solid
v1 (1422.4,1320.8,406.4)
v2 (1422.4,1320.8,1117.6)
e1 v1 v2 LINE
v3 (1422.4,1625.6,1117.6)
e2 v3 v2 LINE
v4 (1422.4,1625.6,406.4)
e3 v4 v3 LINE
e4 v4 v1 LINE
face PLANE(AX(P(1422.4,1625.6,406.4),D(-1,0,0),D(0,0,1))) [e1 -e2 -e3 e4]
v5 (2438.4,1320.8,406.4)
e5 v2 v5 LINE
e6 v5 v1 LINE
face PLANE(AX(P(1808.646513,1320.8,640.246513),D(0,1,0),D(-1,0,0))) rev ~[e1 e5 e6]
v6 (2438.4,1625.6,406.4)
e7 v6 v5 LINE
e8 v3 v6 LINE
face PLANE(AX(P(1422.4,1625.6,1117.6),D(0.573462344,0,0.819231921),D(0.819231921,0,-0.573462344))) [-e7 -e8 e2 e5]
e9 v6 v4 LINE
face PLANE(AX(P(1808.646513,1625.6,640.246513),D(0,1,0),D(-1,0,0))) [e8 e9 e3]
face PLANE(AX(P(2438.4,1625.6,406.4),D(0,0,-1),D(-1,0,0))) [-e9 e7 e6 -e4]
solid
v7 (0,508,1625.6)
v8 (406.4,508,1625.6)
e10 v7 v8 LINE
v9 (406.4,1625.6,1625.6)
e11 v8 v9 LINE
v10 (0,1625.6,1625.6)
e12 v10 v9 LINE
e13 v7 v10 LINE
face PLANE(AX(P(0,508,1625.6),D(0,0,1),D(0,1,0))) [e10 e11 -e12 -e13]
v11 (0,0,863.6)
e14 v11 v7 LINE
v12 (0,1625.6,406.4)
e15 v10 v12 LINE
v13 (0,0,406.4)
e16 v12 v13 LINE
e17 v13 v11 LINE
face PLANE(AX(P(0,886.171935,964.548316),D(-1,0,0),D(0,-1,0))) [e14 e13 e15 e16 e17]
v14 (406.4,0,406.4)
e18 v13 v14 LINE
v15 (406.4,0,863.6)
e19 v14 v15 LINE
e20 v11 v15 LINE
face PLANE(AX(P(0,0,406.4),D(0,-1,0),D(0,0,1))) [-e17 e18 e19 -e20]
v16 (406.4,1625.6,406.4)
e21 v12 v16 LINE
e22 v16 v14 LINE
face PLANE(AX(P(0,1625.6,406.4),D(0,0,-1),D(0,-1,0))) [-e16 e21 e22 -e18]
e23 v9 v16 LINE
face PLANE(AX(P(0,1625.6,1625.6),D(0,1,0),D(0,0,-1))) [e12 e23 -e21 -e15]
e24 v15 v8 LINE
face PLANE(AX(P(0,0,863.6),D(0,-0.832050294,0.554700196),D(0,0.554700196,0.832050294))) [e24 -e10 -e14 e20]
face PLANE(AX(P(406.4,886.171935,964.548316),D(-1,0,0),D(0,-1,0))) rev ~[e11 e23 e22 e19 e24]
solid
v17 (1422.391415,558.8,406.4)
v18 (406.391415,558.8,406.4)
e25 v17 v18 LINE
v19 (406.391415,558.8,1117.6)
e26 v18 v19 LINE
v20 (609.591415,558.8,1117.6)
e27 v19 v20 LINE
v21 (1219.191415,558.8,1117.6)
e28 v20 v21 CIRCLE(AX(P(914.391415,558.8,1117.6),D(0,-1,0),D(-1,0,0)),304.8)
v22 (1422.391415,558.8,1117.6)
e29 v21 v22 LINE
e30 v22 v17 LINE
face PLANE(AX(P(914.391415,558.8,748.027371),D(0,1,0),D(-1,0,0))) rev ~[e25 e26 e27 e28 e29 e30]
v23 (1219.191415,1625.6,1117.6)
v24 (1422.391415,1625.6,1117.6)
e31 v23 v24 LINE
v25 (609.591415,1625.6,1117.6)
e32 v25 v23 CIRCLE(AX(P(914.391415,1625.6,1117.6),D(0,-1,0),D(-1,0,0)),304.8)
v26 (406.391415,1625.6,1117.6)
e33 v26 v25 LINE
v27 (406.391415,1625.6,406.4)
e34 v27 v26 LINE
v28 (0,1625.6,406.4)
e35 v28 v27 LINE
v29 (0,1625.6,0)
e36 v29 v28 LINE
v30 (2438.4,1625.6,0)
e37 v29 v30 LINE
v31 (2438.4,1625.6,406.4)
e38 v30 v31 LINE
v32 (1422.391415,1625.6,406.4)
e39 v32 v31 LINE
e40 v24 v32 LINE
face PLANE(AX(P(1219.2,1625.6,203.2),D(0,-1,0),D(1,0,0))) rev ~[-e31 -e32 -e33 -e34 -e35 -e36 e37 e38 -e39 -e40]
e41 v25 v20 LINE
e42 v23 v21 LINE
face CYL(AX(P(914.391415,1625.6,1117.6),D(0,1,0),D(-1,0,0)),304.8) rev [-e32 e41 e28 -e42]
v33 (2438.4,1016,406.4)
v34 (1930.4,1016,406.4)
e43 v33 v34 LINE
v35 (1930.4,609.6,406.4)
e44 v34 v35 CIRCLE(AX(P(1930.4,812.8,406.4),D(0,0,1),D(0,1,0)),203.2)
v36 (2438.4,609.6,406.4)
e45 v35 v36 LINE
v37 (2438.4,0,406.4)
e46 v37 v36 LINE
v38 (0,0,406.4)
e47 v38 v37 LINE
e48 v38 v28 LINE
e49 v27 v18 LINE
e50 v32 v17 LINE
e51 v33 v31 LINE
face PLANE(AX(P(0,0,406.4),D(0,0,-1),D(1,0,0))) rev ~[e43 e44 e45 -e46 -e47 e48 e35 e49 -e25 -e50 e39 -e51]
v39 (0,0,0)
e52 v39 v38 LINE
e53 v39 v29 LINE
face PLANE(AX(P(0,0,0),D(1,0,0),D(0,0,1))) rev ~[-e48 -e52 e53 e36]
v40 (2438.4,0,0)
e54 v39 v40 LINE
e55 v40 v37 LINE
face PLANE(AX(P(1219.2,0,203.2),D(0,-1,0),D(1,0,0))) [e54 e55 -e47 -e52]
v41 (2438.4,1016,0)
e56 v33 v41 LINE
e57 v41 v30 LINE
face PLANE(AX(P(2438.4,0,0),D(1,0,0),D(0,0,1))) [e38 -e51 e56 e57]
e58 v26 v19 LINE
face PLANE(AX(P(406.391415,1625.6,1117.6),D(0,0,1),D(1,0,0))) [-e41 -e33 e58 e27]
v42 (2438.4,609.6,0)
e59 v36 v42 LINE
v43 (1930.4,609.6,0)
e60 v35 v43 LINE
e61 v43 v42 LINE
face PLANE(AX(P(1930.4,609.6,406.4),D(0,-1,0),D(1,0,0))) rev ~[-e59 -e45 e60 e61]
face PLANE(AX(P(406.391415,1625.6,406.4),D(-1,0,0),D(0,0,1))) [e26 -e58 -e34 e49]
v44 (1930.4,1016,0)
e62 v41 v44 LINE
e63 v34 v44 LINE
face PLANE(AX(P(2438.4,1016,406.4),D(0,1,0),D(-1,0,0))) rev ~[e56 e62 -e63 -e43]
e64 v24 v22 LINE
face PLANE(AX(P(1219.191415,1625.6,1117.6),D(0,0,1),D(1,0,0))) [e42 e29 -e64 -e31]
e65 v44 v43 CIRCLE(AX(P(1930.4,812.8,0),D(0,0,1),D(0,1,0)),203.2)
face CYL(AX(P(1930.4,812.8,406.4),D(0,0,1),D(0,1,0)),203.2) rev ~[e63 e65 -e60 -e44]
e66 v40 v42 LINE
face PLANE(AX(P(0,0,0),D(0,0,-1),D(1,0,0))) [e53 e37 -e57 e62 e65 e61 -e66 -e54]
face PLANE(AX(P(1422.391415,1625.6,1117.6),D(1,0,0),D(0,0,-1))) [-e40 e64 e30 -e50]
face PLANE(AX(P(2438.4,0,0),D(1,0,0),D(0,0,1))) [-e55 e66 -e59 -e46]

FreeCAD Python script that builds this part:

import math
import FreeCAD as App
import Part
import Sketcher
Q = App.Units.Quantity


def add_polygon(sketch, points):
    """Adds a closed chain of lines whose ends are joined by coincident constraints."""
    first, n = sketch.GeometryCount, len(points)
    for a, b in zip(points, points[1:] + points[:1]):
        sketch.addGeometry(Part.LineSegment(App.Vector(*a, 0), App.Vector(*b, 0)), False)
    for i in range(n):
        sketch.addConstraint(Sketcher.Constraint("Coincident", first + i, 2, first + (i + 1) % n, 1))

doc = App.newDocument("Part")
body = doc.addObject("PartDesign::Body", "Body")

sketch1 = body.newObject("Sketcher::SketchObject", "Sketch")
sketch1.AttachmentSupport = (doc.getObject("XZ_Plane"), [""])
sketch1.MapMode = "FlatFace"
add_polygon(sketch1, [(0, 406), (0, 0), (2438, 0), (2438, 406)])
sketch1.addConstraint([
    Sketcher.Constraint("Vertical", 0),
    Sketcher.Constraint("Horizontal", 1),
    Sketcher.Constraint("Vertical", 2),
    Sketcher.Constraint("Horizontal", 3),
    Sketcher.Constraint("Coincident", 0, 2, -1, 1),
    Sketcher.Constraint("DistanceX", 1, 1, 1, 2, Q("96 in")),
    Sketcher.Constraint("DistanceY", 0, 2, 0, 1, Q("16 in")),
])
pad1 = body.newObject("PartDesign::Pad", "Pad")
pad1.Profile = sketch1
pad1.Length = Q("64 in")
pad1.Reversed = True

sketch2 = body.newObject("Sketcher::SketchObject", "Sketch001")
sketch2.AttachmentSupport = (doc.getObject("XY_Plane"), [""])
sketch2.MapMode = "FlatFace"
sketch2.AttachmentOffset = App.Placement(App.Vector(0, 0, 16 * 25.4), App.Rotation())
sketch2.addGeometry([
    Part.LineSegment(App.Vector(1930, 610, 0), App.Vector(2438, 610, 0)),
    Part.LineSegment(App.Vector(2438, 610, 0), App.Vector(2438, 1016, 0)),
    Part.LineSegment(App.Vector(2438, 1016, 0), App.Vector(1930, 1016, 0)),
    Part.ArcOfCircle(Part.Circle(App.Vector(1930, 813, 0), App.Vector(0, 0, 1), 203), math.radians(90), math.radians(270)),
], False)
sketch2.addConstraint([
    Sketcher.Constraint("Coincident", 0, 2, 1, 1),
    Sketcher.Constraint("Coincident", 1, 2, 2, 1),
    Sketcher.Constraint("Tangent", 2, 2, 3, 1),
    Sketcher.Constraint("Tangent", 3, 2, 0, 1),
    Sketcher.Constraint("Horizontal", 0),
    Sketcher.Constraint("Vertical", 1),
    Sketcher.Constraint("Horizontal", 2),
    Sketcher.Constraint("Radius", 3, Q("8 in")),
    Sketcher.Constraint("DistanceX", 0, 1, 0, 2, Q("20 in")),
    Sketcher.Constraint("DistanceX", -1, 1, 3, 3, Q("76 in")),
    Sketcher.Constraint("DistanceY", -1, 1, 3, 3, Q("32 in")),
])
pocket1 = body.newObject("PartDesign::Pocket", "Pocket")
pocket1.Profile = sketch2
pocket1.Length = Q("16 in")

sketch3 = body.newObject("Sketcher::SketchObject", "Sketch002")
sketch3.AttachmentSupport = (doc.getObject("XZ_Plane"), [""])
sketch3.MapMode = "FlatFace"
sketch3.AttachmentOffset = App.Placement(App.Vector(0, 0, -64 * 25.4), App.Rotation())
sketch3.addGeometry([
    Part.LineSegment(App.Vector(1422, 1118, 0), App.Vector(1422, 406, 0)),
    Part.LineSegment(App.Vector(1422, 406, 0), App.Vector(406, 406, 0)),
    Part.LineSegment(App.Vector(406, 406, 0), App.Vector(406, 1118, 0)),
    Part.LineSegment(App.Vector(406, 1118, 0), App.Vector(610, 1118, 0)),
    Part.ArcOfCircle(Part.Circle(App.Vector(914, 1118, 0), App.Vector(0, 0, 1), 305), math.radians(180), math.radians(360)),
    Part.LineSegment(App.Vector(1219, 1118, 0), App.Vector(1422, 1118, 0)),
], False)
sketch3.addConstraint([
    Sketcher.Constraint("Coincident", 0, 2, 1, 1),
    Sketcher.Constraint("Coincident", 1, 2, 2, 1),
    Sketcher.Constraint("Coincident", 2, 2, 3, 1),
    Sketcher.Constraint("Coincident", 3, 2, 4, 1),
    Sketcher.Constraint("Coincident", 4, 2, 5, 1),
    Sketcher.Constraint("Coincident", 5, 2, 0, 1),
    Sketcher.Constraint("Vertical", 0),
    Sketcher.Constraint("Horizontal", 1),
    Sketcher.Constraint("Vertical", 2),
    Sketcher.Constraint("Horizontal", 3),
    Sketcher.Constraint("Horizontal", 5),
    Sketcher.Constraint("Horizontal", 4, 3, 2, 2),
    Sketcher.Constraint("Horizontal", 3, 2, 4, 2),
    Sketcher.Constraint("Equal", 3, 5),
    Sketcher.Constraint("Radius", 4, Q("12 in")),
    Sketcher.Constraint("DistanceX", 1, 2, 1, 1, Q("40 in")),
    Sketcher.Constraint("DistanceY", 0, 2, 0, 1, Q("28 in")),
    Sketcher.Constraint("DistanceY", -1, 1, 4, 3, Q("44 in")),
    Sketcher.Constraint("DistanceX", -1, 1, 4, 3, 914.391415),
])
pad2 = body.newObject("PartDesign::Pad", "Pad001")
pad2.Profile = sketch3
pad2.Length = Q("42 in")
body2 = doc.addObject("PartDesign::Body", "Body001")

sketch4 = body2.newObject("Sketcher::SketchObject", "Sketch003")
sketch4.AttachmentSupport = (doc.getObject("XZ_Plane001"), [""])
sketch4.MapMode = "FlatFace"
sketch4.AttachmentOffset = App.Placement(App.Vector(0, 0, -64 * 25.4), App.Rotation())
add_polygon(sketch4, [(1422, 1118), (2438, 406), (1422, 406)])
sketch4.addConstraint([
    Sketcher.Constraint("Horizontal", 1),
    Sketcher.Constraint("Vertical", 2),
    Sketcher.Constraint("DistanceX", 1, 2, 1, 1, Q("40 in")),
    Sketcher.Constraint("DistanceY", 2, 1, 2, 2, Q("28 in")),
    Sketcher.Constraint("DistanceX", -1, 1, 0, 2, Q("96 in")),
    Sketcher.Constraint("DistanceY", -1, 1, 0, 2, Q("16 in")),
])
pad3 = body2.newObject("PartDesign::Pad", "Pad002")
pad3.Profile = sketch4
pad3.Length = Q("12 in")
body3 = doc.addObject("PartDesign::Body", "Body002")

sketch5 = body3.newObject("Sketcher::SketchObject", "Sketch004")
sketch5.AttachmentSupport = (doc.getObject("YZ_Plane002"), [""])
sketch5.MapMode = "FlatFace"
add_polygon(sketch5, [(1626, 1626), (1626, 406), (0, 406), (0, 864), (508, 1626)])
sketch5.addConstraint([
    Sketcher.Constraint("Vertical", 0),
    Sketcher.Constraint("Horizontal", 1),
    Sketcher.Constraint("Vertical", 2),
    Sketcher.Constraint("Horizontal", 4),
    Sketcher.Constraint("PointOnObject", 1, 2, -2),
    Sketcher.Constraint("DistanceX", 1, 2, 1, 1, Q("64 in")),
    Sketcher.Constraint("DistanceX", 4, 1, 4, 2, Q("44 in")),
    Sketcher.Constraint("DistanceY", 0, 2, 0, 1, Q("48 in")),
    Sketcher.Constraint("DistanceY", 2, 1, 2, 2, Q("18 in")),
    Sketcher.Constraint("DistanceY", -1, 1, 0, 2, Q("16 in")),
])
pad4 = body3.newObject("PartDesign::Pad", "Pad003")
pad4.Profile = sketch5
pad4.Length = Q("16 in")

doc.recompute()
